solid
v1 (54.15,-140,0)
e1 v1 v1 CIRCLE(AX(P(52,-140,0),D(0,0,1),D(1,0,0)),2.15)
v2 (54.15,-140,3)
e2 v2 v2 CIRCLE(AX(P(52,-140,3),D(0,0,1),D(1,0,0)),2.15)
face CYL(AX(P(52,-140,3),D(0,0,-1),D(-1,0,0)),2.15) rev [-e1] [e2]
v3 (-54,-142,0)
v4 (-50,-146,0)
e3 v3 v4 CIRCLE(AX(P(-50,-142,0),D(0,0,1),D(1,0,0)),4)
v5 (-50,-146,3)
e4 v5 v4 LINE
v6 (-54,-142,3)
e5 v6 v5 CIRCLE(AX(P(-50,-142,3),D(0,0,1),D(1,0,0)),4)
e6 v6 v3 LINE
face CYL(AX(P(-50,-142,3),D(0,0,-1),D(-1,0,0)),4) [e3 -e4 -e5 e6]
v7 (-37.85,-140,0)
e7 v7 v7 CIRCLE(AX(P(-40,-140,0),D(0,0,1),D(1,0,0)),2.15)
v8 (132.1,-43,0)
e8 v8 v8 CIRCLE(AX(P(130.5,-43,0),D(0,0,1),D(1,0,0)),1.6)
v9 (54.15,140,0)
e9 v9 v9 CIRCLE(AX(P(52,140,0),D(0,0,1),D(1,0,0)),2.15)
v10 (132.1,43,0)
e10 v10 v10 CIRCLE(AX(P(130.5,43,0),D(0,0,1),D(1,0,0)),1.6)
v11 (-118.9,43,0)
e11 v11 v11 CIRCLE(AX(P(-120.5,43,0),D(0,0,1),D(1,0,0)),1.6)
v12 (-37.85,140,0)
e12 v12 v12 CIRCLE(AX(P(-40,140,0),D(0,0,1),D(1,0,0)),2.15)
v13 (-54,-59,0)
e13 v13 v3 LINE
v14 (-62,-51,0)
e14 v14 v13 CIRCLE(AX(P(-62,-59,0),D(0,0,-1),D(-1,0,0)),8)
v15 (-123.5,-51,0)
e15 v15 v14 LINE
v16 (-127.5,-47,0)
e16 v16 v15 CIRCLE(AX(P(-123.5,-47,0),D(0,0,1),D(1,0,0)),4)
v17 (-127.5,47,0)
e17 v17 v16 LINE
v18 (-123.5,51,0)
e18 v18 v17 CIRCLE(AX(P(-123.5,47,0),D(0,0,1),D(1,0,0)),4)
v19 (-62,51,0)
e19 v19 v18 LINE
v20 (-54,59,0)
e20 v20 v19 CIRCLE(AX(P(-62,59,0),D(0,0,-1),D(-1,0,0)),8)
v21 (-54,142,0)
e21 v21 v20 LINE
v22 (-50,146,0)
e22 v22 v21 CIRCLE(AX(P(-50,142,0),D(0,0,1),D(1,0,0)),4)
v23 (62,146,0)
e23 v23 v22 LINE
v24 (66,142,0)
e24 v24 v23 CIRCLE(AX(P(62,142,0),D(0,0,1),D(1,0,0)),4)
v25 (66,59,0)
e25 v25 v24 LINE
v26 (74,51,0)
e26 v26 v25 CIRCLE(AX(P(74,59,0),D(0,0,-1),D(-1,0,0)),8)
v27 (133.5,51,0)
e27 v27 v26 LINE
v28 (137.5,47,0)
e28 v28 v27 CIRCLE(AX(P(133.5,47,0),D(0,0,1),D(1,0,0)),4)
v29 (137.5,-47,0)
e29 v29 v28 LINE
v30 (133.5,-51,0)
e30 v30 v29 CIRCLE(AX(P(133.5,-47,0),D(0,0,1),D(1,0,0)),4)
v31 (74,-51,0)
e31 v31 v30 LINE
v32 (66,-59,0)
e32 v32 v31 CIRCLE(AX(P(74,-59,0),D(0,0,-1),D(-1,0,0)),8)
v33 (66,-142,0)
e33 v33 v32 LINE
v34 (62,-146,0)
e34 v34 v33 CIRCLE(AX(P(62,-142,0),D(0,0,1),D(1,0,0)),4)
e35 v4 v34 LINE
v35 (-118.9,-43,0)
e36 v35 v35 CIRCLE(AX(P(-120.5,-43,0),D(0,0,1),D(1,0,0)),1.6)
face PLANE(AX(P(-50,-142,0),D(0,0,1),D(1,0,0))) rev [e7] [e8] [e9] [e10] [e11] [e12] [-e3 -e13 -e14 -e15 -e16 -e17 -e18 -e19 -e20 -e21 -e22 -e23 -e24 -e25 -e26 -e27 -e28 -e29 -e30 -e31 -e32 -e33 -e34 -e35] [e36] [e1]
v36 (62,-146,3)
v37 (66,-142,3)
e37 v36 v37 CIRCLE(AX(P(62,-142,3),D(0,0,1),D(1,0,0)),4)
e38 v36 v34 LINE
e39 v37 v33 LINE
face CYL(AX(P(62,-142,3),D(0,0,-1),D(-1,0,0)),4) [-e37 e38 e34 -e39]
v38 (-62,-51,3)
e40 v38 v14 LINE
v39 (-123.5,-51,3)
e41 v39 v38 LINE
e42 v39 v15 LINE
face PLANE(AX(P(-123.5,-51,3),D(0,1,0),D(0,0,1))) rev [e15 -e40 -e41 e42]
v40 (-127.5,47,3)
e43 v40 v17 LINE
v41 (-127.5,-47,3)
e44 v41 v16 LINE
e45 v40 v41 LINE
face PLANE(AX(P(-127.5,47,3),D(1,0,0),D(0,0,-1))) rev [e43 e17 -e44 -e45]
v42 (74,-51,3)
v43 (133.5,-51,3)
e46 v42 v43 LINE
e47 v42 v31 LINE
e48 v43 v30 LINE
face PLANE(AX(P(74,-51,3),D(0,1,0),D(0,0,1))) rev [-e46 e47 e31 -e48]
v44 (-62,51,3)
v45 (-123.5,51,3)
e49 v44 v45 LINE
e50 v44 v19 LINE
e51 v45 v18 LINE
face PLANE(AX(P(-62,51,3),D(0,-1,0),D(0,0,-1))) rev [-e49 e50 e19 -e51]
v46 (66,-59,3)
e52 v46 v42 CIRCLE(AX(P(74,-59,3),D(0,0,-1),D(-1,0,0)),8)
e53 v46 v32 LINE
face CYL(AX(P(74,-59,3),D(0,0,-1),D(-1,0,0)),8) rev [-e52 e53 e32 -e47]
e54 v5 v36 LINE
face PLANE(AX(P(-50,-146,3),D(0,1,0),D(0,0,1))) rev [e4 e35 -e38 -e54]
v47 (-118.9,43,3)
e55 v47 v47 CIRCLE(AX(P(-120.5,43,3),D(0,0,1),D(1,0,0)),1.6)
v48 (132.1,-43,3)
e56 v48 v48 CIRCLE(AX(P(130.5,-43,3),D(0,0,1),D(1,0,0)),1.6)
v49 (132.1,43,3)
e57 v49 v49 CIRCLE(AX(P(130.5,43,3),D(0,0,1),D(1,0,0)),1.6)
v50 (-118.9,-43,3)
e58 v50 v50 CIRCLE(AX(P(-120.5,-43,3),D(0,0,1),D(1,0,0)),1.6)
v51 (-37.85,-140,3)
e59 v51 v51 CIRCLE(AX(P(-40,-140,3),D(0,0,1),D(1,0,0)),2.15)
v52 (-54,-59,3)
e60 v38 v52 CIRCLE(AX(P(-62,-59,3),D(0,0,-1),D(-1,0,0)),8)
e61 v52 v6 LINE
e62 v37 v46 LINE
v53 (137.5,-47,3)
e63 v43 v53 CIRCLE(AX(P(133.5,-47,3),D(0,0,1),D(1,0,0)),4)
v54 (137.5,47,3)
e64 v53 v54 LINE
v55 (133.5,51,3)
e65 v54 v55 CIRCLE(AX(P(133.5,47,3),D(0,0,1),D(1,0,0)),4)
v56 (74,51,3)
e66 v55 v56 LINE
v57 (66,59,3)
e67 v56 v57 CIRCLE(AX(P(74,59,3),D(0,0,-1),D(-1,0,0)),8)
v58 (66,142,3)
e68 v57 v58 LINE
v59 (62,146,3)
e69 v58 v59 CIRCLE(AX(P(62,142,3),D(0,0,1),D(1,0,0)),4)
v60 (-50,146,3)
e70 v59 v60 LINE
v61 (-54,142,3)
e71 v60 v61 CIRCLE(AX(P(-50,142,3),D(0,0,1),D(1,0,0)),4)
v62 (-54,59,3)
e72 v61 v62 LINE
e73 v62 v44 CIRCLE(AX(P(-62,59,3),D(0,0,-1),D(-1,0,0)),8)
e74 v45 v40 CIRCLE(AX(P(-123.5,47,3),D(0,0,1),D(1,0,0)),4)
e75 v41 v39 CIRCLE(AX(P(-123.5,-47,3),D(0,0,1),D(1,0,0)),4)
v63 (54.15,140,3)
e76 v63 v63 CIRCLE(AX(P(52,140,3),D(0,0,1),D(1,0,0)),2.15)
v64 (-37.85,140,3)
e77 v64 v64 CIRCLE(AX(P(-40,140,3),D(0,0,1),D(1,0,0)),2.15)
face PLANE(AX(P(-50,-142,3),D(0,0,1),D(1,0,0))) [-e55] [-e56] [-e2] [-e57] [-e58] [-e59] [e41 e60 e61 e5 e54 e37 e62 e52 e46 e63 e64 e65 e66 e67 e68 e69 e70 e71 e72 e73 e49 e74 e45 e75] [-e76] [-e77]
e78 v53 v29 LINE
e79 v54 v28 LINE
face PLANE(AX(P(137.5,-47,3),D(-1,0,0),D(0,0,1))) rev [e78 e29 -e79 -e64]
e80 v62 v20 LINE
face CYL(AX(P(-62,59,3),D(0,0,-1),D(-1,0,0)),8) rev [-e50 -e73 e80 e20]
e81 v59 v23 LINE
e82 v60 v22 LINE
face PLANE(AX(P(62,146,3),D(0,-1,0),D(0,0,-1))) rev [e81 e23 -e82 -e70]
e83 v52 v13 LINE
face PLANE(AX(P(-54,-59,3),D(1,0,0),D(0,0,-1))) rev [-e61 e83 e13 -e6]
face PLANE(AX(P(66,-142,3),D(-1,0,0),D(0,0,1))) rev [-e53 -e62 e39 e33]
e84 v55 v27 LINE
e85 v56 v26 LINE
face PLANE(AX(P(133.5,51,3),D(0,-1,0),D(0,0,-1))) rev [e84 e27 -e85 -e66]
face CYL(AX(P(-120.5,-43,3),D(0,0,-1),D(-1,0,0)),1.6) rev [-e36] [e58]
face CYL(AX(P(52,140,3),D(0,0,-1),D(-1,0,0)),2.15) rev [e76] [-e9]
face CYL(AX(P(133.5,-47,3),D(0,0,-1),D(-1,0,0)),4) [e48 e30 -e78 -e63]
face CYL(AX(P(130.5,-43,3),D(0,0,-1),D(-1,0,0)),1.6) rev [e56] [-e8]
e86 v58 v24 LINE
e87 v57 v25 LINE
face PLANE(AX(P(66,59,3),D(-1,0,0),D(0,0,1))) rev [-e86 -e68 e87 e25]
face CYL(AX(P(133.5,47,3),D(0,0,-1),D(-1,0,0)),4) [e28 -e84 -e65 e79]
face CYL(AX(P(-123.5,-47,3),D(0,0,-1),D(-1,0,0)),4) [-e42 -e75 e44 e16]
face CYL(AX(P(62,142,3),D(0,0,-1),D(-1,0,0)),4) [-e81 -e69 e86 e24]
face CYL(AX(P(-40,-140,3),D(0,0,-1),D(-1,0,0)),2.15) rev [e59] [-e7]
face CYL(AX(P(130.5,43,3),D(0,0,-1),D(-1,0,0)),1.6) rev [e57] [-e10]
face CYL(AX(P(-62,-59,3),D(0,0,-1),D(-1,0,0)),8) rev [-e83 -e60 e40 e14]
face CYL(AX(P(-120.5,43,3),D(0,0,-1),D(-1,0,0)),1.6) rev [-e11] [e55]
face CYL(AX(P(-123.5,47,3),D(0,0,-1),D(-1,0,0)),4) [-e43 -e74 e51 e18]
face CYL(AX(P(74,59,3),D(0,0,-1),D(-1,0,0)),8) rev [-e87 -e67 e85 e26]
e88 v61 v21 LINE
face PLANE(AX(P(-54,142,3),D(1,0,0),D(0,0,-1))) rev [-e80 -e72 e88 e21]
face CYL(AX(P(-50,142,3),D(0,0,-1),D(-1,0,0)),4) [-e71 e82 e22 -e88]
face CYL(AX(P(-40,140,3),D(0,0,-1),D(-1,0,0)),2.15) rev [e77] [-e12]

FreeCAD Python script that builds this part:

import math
import FreeCAD as App
import Part
import Sketcher

V = App.Vector
Q = App.Units.Quantity

doc = App.newDocument("Part")
body = doc.addObject("PartDesign::Body", "Body")

sketch1 = doc.addObject("Sketcher::SketchObject", "Sketch")
body.addObject(sketch1)
sketch1.AttachmentSupport = (doc.XY_Plane, [""])
sketch1.MapMode = "FlatFace"
sketch1.addGeometry([
    Part.LineSegment(V(-50, -146, 0), V(62, -146, 0)),
    Part.ArcOfCircle(Part.Circle(V(62, -142, 0), V(0, 0, 1), 4), math.radians(-90), math.radians(0)),
    Part.LineSegment(V(66, -142, 0), V(66, -59, 0)),
    Part.ArcOfCircle(Part.Circle(V(74, -59, 0), V(0, 0, 1), 8), math.radians(90), math.radians(180)),
    Part.LineSegment(V(74, -51, 0), V(133.5, -51, 0)),
    Part.ArcOfCircle(Part.Circle(V(133.5, -47, 0), V(0, 0, 1), 4), math.radians(-90), math.radians(0)),
    Part.LineSegment(V(137.5, -47, 0), V(137.5, 47, 0)),
    Part.ArcOfCircle(Part.Circle(V(133.5, 47, 0), V(0, 0, 1), 4), math.radians(0), math.radians(90)),
    Part.LineSegment(V(133.5, 51, 0), V(74, 51, 0)),
    Part.ArcOfCircle(Part.Circle(V(74, 59, 0), V(0, 0, 1), 8), math.radians(-180), math.radians(-90)),
    Part.LineSegment(V(66, 59, 0), V(66, 142, 0)),
    Part.ArcOfCircle(Part.Circle(V(62, 142, 0), V(0, 0, 1), 4), math.radians(0), math.radians(90)),
    Part.LineSegment(V(62, 146, 0), V(-50, 146, 0)),
    Part.ArcOfCircle(Part.Circle(V(-50, 142, 0), V(0, 0, 1), 4), math.radians(90), math.radians(180)),
    Part.LineSegment(V(-54, 142, 0), V(-54, 59, 0)),
    Part.ArcOfCircle(Part.Circle(V(-62, 59, 0), V(0, 0, 1), 8), math.radians(-90), math.radians(0)),
    Part.LineSegment(V(-62, 51, 0), V(-123.5, 51, 0)),
    Part.ArcOfCircle(Part.Circle(V(-123.5, 47, 0), V(0, 0, 1), 4), math.radians(90), math.radians(180)),
    Part.LineSegment(V(-127.5, 47, 0), V(-127.5, -47, 0)),
    Part.ArcOfCircle(Part.Circle(V(-123.5, -47, 0), V(0, 0, 1), 4), math.radians(180), math.radians(270)),
    Part.LineSegment(V(-123.5, -51, 0), V(-62, -51, 0)),
    Part.ArcOfCircle(Part.Circle(V(-62, -59, 0), V(0, 0, 1), 8), math.radians(0), math.radians(90)),
    Part.LineSegment(V(-54, -59, 0), V(-54, -142, 0)),
    Part.ArcOfCircle(Part.Circle(V(-50, -142, 0), V(0, 0, 1), 4), math.radians(180), math.radians(270)),
    Part.Circle(V(-40, -140, 0), V(0, 0, 1), 2.15),
    Part.Circle(V(-120.5, -43, 0), V(0, 0, 1), 1.6),
    Part.Circle(V(52, -140, 0), V(0, 0, 1), 2.15),
    Part.Circle(V(130.5, -43, 0), V(0, 0, 1), 1.6),
    Part.Circle(V(-120.5, 43, 0), V(0, 0, 1), 1.6),
    Part.Circle(V(-40, 140, 0), V(0, 0, 1), 2.15),
    Part.Circle(V(130.5, 43, 0), V(0, 0, 1), 1.6),
    Part.Circle(V(52, 140, 0), V(0, 0, 1), 2.15),
], False)
sketch1.addConstraint([
    Sketcher.Constraint("Tangent", 0, 2, 1, 1),
    Sketcher.Constraint("Tangent", 1, 2, 2, 1),
    Sketcher.Constraint("Tangent", 2, 2, 3, 2),
    Sketcher.Constraint("Tangent", 3, 1, 4, 1),
    Sketcher.Constraint("Tangent", 4, 2, 5, 1),
    Sketcher.Constraint("Tangent", 5, 2, 6, 1),
    Sketcher.Constraint("Tangent", 6, 2, 7, 1),
    Sketcher.Constraint("Tangent", 7, 2, 8, 1),
    Sketcher.Constraint("Tangent", 8, 2, 9, 2),
    Sketcher.Constraint("Tangent", 9, 1, 10, 1),
    Sketcher.Constraint("Tangent", 10, 2, 11, 1),
    Sketcher.Constraint("Tangent", 11, 2, 12, 1),
    Sketcher.Constraint("Tangent", 12, 2, 13, 1),
    Sketcher.Constraint("Tangent", 13, 2, 14, 1),
    Sketcher.Constraint("Tangent", 14, 2, 15, 2),
    Sketcher.Constraint("Tangent", 15, 1, 16, 1),
    Sketcher.Constraint("Tangent", 16, 2, 17, 1),
    Sketcher.Constraint("Tangent", 17, 2, 18, 1),
    Sketcher.Constraint("Tangent", 18, 2, 19, 1),
    Sketcher.Constraint("Tangent", 19, 2, 20, 1),
    Sketcher.Constraint("Tangent", 20, 2, 21, 2),
    Sketcher.Constraint("Tangent", 21, 1, 22, 1),
    Sketcher.Constraint("Tangent", 22, 2, 23, 1),
    Sketcher.Constraint("Tangent", 23, 2, 0, 1),
    Sketcher.Constraint("Horizontal", 0),
    Sketcher.Constraint("Vertical", 2),
    Sketcher.Constraint("Horizontal", 4),
    Sketcher.Constraint("Vertical", 6),
    Sketcher.Constraint("Horizontal", 8),
    Sketcher.Constraint("Vertical", 10),
    Sketcher.Constraint("Horizontal", 12),
    Sketcher.Constraint("Vertical", 14),
    Sketcher.Constraint("Horizontal", 16),
    Sketcher.Constraint("Vertical", 18),
    Sketcher.Constraint("Horizontal", 20),
    Sketcher.Constraint("Vertical", 22),
    Sketcher.Constraint("Equal", 1, 5),
    Sketcher.Constraint("Equal", 5, 7),
    Sketcher.Constraint("Equal", 3, 9),
    Sketcher.Constraint("Equal", 7, 11),
    Sketcher.Constraint("Equal", 11, 13),
    Sketcher.Constraint("Equal", 9, 15),
    Sketcher.Constraint("Equal", 13, 17),
    Sketcher.Constraint("Equal", 17, 19),
    Sketcher.Constraint("Equal", 15, 21),
    Sketcher.Constraint("Equal", 19, 23),
    Sketcher.Constraint("Equal", 24, 26),
    Sketcher.Constraint("Equal", 25, 27),
    Sketcher.Constraint("Equal", 27, 28),
    Sketcher.Constraint("Equal", 26, 29),
    Sketcher.Constraint("Equal", 28, 30),
    Sketcher.Constraint("Equal", 29, 31),
    Sketcher.Constraint("Symmetric", 3, 3, 9, 3, -1),
    Sketcher.Constraint("Symmetric", 15, 3, 21, 3, -1),
    Sketcher.Constraint("Symmetric", 25, 3, 28, 3, -1),
    Sketcher.Constraint("Symmetric", 24, 3, 29, 3, -1),
    Sketcher.Constraint("Symmetric", 27, 3, 30, 3, -1),
    Sketcher.Constraint("Symmetric", 26, 3, 31, 3, -1),
    Sketcher.Constraint("Horizontal", 9, 3, 15, 3),
    Sketcher.Constraint("Horizontal", 24, 3, 26, 3),
    Sketcher.Constraint("Horizontal", 25, 3, 27, 3),
    Sketcher.Constraint("Equal", 2, 10),
    Sketcher.Constraint("Radius", 1, Q("4 mm")),
    Sketcher.Constraint("Radius", 3, Q("8 mm")),
    Sketcher.Constraint("Diameter", 24, Q("4.3 mm")),
    Sketcher.Constraint("Diameter", 25, Q("3.2 mm")),
    Sketcher.Constraint("DistanceX", 0, 1, 0, 2, Q("112 mm")),
    Sketcher.Constraint("DistanceY", 2, 1, 2, 2, Q("83 mm")),
    Sketcher.Constraint("DistanceY", 6, 1, 6, 2, Q("94 mm")),
    Sketcher.Constraint("DistanceX", 4, 1, 4, 2, Q("59.5 mm")),
    Sketcher.Constraint("DistanceX", 16, 2, 16, 1, Q("61.5 mm")),
    Sketcher.Constraint("DistanceX", -1, 1, 1, 3, Q("62 mm")),
    Sketcher.Constraint("DistanceX", 24, 3, -1, 1, Q("40 mm")),
    Sketcher.Constraint("DistanceY", 24, 3, -1, 1, Q("140 mm")),
    Sketcher.Constraint("DistanceY", 25, 3, -1, 1, Q("43 mm")),
    Sketcher.Constraint("DistanceX", -1, 1, 26, 3, Q("52 mm")),
    Sketcher.Constraint("DistanceX", 19, 3, 25, 3, Q("3 mm")),
    Sketcher.Constraint("DistanceX", 27, 3, 5, 3, Q("3 mm")),
])
pad1 = doc.addObject("PartDesign::Pad", "Pad")
body.addObject(pad1)
pad1.Profile = sketch1
pad1.Length = 3

doc.recompute()
